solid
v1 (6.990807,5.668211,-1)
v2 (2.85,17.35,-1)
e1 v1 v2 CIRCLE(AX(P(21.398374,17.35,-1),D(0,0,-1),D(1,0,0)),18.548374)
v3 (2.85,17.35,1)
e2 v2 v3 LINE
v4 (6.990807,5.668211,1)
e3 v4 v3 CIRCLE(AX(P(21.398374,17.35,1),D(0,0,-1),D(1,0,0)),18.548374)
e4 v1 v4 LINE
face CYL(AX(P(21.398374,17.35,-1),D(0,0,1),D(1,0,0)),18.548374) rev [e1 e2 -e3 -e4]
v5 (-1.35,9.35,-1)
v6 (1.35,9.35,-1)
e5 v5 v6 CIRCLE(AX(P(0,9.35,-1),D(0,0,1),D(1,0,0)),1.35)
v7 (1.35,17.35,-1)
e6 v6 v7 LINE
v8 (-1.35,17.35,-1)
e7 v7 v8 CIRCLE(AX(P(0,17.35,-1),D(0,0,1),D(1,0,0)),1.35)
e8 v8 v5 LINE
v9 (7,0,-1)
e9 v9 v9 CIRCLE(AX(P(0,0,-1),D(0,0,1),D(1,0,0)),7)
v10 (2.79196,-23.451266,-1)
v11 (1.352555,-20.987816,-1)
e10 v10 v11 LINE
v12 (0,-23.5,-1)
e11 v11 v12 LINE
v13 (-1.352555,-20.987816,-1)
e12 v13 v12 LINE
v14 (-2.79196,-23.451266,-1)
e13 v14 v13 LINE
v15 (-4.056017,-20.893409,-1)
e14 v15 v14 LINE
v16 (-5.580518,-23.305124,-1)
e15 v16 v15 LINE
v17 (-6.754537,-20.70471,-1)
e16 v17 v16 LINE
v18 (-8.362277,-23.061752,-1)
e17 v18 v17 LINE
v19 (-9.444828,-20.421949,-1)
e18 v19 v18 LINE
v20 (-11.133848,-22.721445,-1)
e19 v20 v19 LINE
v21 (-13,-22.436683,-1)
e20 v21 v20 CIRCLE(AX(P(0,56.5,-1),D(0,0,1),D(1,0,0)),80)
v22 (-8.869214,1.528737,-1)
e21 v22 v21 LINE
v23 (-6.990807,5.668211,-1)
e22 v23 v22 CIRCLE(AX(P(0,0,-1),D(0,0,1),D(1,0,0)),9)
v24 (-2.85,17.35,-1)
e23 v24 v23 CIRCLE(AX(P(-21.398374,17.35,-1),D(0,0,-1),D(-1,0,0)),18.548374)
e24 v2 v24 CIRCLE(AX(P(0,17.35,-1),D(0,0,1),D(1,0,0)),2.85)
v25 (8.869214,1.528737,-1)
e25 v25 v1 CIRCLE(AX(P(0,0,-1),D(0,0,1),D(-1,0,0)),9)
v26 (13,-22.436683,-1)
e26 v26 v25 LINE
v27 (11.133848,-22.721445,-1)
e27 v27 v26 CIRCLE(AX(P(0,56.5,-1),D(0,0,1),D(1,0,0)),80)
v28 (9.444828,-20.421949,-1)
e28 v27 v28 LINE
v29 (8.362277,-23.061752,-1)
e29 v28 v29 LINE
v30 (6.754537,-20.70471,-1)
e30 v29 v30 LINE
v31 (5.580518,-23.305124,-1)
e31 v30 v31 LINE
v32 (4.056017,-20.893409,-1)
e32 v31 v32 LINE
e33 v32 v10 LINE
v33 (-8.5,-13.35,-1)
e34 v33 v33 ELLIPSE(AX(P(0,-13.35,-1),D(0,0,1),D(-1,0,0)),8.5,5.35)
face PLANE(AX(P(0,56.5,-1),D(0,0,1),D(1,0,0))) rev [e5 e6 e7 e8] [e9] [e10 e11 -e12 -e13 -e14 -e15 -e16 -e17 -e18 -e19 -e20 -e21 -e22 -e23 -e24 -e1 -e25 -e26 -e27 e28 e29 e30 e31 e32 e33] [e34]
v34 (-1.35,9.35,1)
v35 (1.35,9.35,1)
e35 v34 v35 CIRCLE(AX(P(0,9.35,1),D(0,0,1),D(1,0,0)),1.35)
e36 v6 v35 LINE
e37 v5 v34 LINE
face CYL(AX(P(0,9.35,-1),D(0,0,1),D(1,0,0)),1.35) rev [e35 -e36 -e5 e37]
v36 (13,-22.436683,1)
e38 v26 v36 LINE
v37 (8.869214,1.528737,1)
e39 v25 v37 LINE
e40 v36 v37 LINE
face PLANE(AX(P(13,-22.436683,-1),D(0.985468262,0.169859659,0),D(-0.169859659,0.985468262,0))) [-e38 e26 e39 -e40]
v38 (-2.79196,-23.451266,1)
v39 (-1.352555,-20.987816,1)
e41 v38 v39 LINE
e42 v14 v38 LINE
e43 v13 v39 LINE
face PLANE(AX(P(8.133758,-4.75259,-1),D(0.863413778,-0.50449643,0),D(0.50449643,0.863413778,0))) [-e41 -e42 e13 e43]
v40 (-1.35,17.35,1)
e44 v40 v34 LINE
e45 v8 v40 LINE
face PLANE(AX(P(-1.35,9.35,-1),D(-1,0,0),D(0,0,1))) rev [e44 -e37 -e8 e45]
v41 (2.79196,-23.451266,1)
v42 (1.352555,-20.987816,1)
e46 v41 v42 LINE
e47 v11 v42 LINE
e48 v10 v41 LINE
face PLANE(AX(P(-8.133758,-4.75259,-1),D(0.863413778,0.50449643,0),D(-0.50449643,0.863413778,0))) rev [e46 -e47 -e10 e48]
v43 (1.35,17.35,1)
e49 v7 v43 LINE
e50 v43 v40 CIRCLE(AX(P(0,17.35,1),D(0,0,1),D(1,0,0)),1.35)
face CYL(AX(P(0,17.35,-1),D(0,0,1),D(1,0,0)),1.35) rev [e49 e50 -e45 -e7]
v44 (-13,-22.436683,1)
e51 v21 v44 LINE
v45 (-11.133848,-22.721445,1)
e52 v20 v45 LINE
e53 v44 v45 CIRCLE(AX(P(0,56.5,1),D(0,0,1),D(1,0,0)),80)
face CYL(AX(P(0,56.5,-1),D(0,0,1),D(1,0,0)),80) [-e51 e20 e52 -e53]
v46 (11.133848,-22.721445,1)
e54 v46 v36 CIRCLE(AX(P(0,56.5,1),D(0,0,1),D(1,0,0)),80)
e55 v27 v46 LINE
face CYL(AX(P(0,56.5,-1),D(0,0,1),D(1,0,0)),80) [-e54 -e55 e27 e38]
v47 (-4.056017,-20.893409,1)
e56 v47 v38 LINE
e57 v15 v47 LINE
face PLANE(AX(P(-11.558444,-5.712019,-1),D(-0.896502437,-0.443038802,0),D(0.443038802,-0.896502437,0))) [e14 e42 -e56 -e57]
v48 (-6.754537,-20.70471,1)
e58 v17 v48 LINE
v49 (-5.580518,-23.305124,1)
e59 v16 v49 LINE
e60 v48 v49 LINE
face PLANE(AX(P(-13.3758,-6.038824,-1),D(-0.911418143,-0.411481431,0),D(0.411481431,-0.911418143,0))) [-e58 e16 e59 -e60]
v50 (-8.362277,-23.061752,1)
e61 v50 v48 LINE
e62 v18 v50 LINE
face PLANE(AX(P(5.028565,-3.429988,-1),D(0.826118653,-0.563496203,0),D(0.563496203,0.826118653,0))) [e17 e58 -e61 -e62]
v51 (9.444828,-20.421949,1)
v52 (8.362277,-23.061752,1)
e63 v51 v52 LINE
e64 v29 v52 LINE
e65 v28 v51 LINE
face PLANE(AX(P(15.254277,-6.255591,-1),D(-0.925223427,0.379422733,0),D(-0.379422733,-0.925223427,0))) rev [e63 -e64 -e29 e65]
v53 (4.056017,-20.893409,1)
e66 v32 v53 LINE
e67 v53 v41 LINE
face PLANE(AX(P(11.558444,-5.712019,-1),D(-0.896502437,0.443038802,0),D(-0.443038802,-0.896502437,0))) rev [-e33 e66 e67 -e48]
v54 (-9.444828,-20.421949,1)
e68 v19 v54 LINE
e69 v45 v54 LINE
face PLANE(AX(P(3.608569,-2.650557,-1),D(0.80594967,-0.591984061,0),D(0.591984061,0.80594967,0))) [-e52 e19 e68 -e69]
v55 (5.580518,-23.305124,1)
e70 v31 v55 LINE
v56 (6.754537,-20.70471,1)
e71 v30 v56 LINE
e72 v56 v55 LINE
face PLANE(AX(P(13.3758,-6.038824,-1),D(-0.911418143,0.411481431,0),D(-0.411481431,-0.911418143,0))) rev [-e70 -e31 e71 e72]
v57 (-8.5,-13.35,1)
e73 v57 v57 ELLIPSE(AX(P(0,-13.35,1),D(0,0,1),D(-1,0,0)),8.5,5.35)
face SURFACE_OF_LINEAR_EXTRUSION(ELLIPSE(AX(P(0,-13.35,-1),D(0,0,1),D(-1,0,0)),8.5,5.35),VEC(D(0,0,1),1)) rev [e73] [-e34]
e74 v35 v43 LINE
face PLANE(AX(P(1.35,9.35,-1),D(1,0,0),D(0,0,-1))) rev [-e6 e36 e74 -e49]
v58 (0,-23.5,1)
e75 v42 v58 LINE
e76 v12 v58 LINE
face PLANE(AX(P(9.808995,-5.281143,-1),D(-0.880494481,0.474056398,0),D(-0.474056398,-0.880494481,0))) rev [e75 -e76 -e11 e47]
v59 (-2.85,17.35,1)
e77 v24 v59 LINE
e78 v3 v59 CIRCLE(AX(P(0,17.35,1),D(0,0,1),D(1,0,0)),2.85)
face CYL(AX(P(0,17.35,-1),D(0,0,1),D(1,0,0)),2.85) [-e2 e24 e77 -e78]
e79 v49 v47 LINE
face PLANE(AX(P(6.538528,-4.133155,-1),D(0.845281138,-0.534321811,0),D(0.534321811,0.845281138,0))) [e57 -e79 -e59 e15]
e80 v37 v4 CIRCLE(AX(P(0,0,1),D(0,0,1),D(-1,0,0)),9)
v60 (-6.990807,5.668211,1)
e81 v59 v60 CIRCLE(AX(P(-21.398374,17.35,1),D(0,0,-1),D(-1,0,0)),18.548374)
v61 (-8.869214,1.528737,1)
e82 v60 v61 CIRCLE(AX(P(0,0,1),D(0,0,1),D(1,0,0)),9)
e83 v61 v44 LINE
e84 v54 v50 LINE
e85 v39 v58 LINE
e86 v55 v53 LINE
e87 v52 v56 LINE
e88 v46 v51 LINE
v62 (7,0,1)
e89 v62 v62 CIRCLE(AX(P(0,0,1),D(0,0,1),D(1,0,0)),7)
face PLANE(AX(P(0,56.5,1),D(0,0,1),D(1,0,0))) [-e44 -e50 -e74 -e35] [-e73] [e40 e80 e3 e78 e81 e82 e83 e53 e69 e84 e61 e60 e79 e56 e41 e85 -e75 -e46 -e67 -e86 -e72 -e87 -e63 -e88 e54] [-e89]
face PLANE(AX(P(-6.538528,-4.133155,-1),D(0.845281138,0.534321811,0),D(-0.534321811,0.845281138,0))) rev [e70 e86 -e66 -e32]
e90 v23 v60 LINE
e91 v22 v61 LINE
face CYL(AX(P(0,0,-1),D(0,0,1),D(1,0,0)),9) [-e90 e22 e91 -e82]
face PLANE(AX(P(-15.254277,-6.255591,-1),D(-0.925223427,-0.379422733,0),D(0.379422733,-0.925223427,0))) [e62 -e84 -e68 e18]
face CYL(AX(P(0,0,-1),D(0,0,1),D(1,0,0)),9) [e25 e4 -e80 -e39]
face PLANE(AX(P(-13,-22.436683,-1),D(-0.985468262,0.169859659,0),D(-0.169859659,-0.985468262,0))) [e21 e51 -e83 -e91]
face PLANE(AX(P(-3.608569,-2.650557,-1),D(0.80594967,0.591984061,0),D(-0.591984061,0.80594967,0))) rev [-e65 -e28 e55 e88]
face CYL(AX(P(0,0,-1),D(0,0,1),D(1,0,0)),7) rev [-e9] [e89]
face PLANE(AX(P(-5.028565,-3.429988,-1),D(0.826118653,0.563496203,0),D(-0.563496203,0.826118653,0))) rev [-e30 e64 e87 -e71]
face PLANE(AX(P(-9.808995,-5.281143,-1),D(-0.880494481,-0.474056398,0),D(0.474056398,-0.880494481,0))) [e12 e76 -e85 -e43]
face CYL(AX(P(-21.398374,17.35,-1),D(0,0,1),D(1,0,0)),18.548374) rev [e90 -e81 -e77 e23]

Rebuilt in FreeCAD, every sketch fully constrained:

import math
import FreeCAD as App
import Part
import Sketcher

V = App.Vector
Q = App.Units.Quantity

doc = App.newDocument("Part")
body = doc.addObject("PartDesign::Body", "Body")

# Sketch on XY plane
sketch1 = doc.addObject("Sketcher::SketchObject", "Sketch")
body.addObject(sketch1)
sketch1.AttachmentSupport = (doc.XY_Plane, [""])
sketch1.MapMode = "FlatFace"
sketch1.addGeometry([
    Part.LineSegment(V(-8.869214, 1.528737, 0), V(-13, -22.436683, 0)),  # 0
    Part.ArcOfCircle(Part.Circle(V(0, 56.5, 0), V(0, 0, 1), 80), math.radians(-99.352035), math.radians(-80.647965)),  # 1
    Part.LineSegment(V(13, -22.436683, 0), V(8.869214, 1.528737, 0)),  # 2
    Part.ArcOfCircle(Part.Circle(V(0, 0, 0), V(0, 0, 1), 9), math.radians(9.779659), math.radians(39.03546)),  # 3
    Part.ArcOfCircle(Part.Circle(V(21.398374, 17.35, 0), V(0, 0, 1), 18.548374), math.radians(-180), math.radians(-140.96454)),  # 4
    Part.ArcOfCircle(Part.Circle(V(0, 17.35, 0), V(0, 0, 1), 2.85), math.radians(0), math.radians(180)),  # 5
    Part.ArcOfCircle(Part.Circle(V(-21.398374, 17.35, 0), V(0, 0, 1), 18.548374), math.radians(-39.03546), math.radians(0)),  # 6
    Part.ArcOfCircle(Part.Circle(V(0, 0, 0), V(0, 0, 1), 9), math.radians(140.96454), math.radians(170.220341)),  # 7
    Part.Ellipse(V(-8.5, -13.35, 0), V(0, -18.7, 0), V(0, -13.35, 0)),  # 8
    Part.Circle(V(0, 0, 0), V(0, 0, 1), 7),  # 9
    Part.LineSegment(V(-1.35, 9.35, 0), V(-1.35, 17.35, 0)),  # 10
    Part.ArcOfCircle(Part.Circle(V(0, 17.35, 0), V(0, 0, 1), 1.35), math.radians(0), math.radians(180)),  # 11
    Part.LineSegment(V(1.35, 17.35, 0), V(1.35, 9.35, 0)),  # 12
    Part.ArcOfCircle(Part.Circle(V(0, 9.35, 0), V(0, 0, 1), 1.35), math.radians(180), math.radians(360)),  # 13
], False)
sketch1.addConstraint([
    Sketcher.Constraint("Block", 8),
    Sketcher.Constraint("Coincident", 0, 2, 1, 1),
    Sketcher.Constraint("Coincident", 1, 2, 2, 1),
    Sketcher.Constraint("Tangent", 2, 2, 3, 1),
    Sketcher.Constraint("Tangent", 3, 2, 4, 2),
    Sketcher.Constraint("Tangent", 4, 1, 5, 1),
    Sketcher.Constraint("Tangent", 5, 2, 6, 2),
    Sketcher.Constraint("Tangent", 6, 1, 7, 1),
    Sketcher.Constraint("Tangent", 7, 2, 0, 1),
    Sketcher.Constraint("Tangent", 10, 2, 11, 2),
    Sketcher.Constraint("Tangent", 11, 1, 12, 1),
    Sketcher.Constraint("Tangent", 12, 2, 13, 2),
    Sketcher.Constraint("Tangent", 13, 1, 10, 1),
    Sketcher.Constraint("Vertical", 10),
    Sketcher.Constraint("Vertical", 12),
    Sketcher.Constraint("Coincident", 3, 3, -1, 1),
    Sketcher.Constraint("Coincident", 7, 3, -1, 1),
    Sketcher.Constraint("Coincident", 9, 3, -1, 1),
    Sketcher.Constraint("Coincident", 11, 3, 5, 3),
    Sketcher.Constraint("Equal", 4, 6),
    Sketcher.Constraint("Equal", 3, 7),
    Sketcher.Constraint("Symmetric", 0, 2, 1, 2, -2),
    Sketcher.Constraint("PointOnObject", 5, 3, -2),
    Sketcher.Constraint("Horizontal", 4, 3, 5, 3),
    Sketcher.Constraint("Diameter", 9, Q("14 mm")),
    Sketcher.Constraint("Radius", 1, Q("80 mm")),
    Sketcher.Constraint("Radius", 3, Q("9 mm")),
    Sketcher.Constraint("DistanceY", 10, 1, 10, 2, Q("8 mm")),
    Sketcher.Constraint("Radius", 5, Q("2.85 mm")),
    Sketcher.Constraint("Radius", 11, Q("1.35 mm")),
    Sketcher.Constraint("DistanceX", 0, 2, -1, 1, Q("13 mm")),
    Sketcher.Constraint("DistanceY", -1, 1, 1, 3, Q("56.5 mm")),
    Sketcher.Constraint("DistanceY", -1, 1, 4, 3, Q("17.35 mm")),
])
pad1 = doc.addObject("PartDesign::Pad", "Pad")
body.addObject(pad1)
pad1.Profile = sketch1
pad1.Length = 2
pad1.Midplane = True

# Sketch on XY plane
sketch2 = doc.addObject("Sketcher::SketchObject", "Sketch001")
body.addObject(sketch2)
sketch2.AttachmentSupport = (doc.XY_Plane, [""])
sketch2.MapMode = "FlatFace"
sketch2.AttachmentOffset = App.Placement(V(0, 0, 1), App.Rotation())
sketch2.addGeometry([
    Part.ArcOfCircle(Part.Circle(V(0, 56.5, 0), V(0, 0, 1), 80), math.radians(-98), math.radians(-96)),  # 0
    Part.LineSegment(V(-8.4, -23.1, 0), V(-9.4, -20.4, 0)),  # 1
    Part.LineSegment(V(-9.4, -20.4, 0), V(-11.1, -22.7, 0)),  # 2
    Part.ArcOfCircle(Part.Circle(V(0, 56.5, 0), V(0, 0, 1), 80), math.radians(-96), math.radians(-94)),  # 3
    Part.LineSegment(V(-5.6, -23.3, 0), V(-6.8, -20.7, 0)),  # 4
    Part.LineSegment(V(-6.8, -20.7, 0), V(-8.4, -23.1, 0)),  # 5
    Part.ArcOfCircle(Part.Circle(V(0, 56.5, 0), V(0, 0, 1), 80), math.radians(-94), math.radians(-92)),  # 6
    Part.LineSegment(V(-2.8, -23.5, 0), V(-4.1, -20.9, 0)),  # 7
    Part.LineSegment(V(-4.1, -20.9, 0), V(-5.6, -23.3, 0)),  # 8
    Part.LineSegment(V(-1.4, -21, 0), V(-2.8, -23.5, 0)),  # 9
    Part.ArcOfCircle(Part.Circle(V(0, 56.5, 0), V(0, 0, 1), 80), math.radians(-92), math.radians(-90)),  # 10
    Part.LineSegment(V(0, -23.5, 0), V(-1.4, -21, 0)),  # 11
], False)
sketch2.addConstraint([
    Sketcher.Constraint("Coincident", 0, 2, 1, 1),
    Sketcher.Constraint("Coincident", 1, 2, 2, 1),
    Sketcher.Constraint("Coincident", 2, 2, 0, 1),
    Sketcher.Constraint("Coincident", 3, 2, 4, 1),
    Sketcher.Constraint("Coincident", 4, 2, 5, 1),
    Sketcher.Constraint("Coincident", 5, 2, 3, 1),
    Sketcher.Constraint("Coincident", 6, 2, 7, 1),
    Sketcher.Constraint("Coincident", 7, 2, 8, 1),
    Sketcher.Constraint("Coincident", 8, 2, 6, 1),
    Sketcher.Constraint("Coincident", 9, 2, 10, 1),
    Sketcher.Constraint("Coincident", 10, 2, 11, 1),
    Sketcher.Constraint("Coincident", 11, 2, 9, 1),
    Sketcher.Constraint("Coincident", 3, 3, 0, 3),
    Sketcher.Constraint("Coincident", 6, 3, 0, 3),
    Sketcher.Constraint("Coincident", 10, 3, 0, 3),
    Sketcher.Constraint("Coincident", 5, 2, 0, 2),
    Sketcher.Constraint("Coincident", 8, 2, 3, 2),
    Sketcher.Constraint("Coincident", 9, 2, 6, 2),
    Sketcher.Constraint("PointOnObject", 0, 3, -2),
    Sketcher.Constraint("PointOnObject", 10, 2, -2),
    Sketcher.Constraint("Equal", 1, 2),
    Sketcher.Constraint("Equal", 2, 4),
    Sketcher.Constraint("Equal", 4, 5),
    Sketcher.Constraint("Equal", 5, 7),
    Sketcher.Constraint("Equal", 7, 8),
    Sketcher.Constraint("Equal", 8, 9),
    Sketcher.Constraint("Equal", 9, 11),
    Sketcher.Constraint("Radius", 0, Q("80 mm")),
    Sketcher.Constraint("DistanceY", -1, 1, 0, 3, Q("56.5 mm")),
    Sketcher.Constraint("DistanceY", 7, 2, 4, 2, Q("0.188699 mm")),
    Sketcher.Constraint("DistanceX", 3, 2, 7, 2, Q("1.524501 mm")),
    Sketcher.Constraint("Distance", 1, Q("2.853152 mm")),
    Sketcher.Constraint("DistanceY", 0, 2, -1, 1, Q("23.061752 mm")),
    Sketcher.Constraint("DistanceY", 1, 2, -1, 1, Q("20.421949 mm")),
])
pocket1 = doc.addObject("PartDesign::Pocket", "Pocket")
body.addObject(pocket1)
pocket1.Profile = sketch2
pocket1.Type = "ThroughAll"
doc.recompute()

mirrored = doc.addObject("PartDesign::Mirrored", "Mirrored")
body.addObject(mirrored)
mirrored.Originals = [pocket1]
mirrored.MirrorPlane = (doc.YZ_Plane, [""])
body.Tip = mirrored

doc.recompute()
